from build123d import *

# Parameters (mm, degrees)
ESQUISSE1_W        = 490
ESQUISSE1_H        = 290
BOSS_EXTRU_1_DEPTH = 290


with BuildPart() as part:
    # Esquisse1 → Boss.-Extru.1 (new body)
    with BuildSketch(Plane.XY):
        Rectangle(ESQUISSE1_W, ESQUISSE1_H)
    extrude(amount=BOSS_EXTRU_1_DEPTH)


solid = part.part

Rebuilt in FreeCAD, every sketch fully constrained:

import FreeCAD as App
import Part
import Sketcher
from FreeCAD import Vector


def add_polygon(sketch, points):
    """Adds a closed chain of lines whose ends are joined by coincident constraints."""
    first, n = sketch.GeometryCount, len(points)
    for a, b in zip(points, points[1:] + points[:1]):
        sketch.addGeometry(Part.LineSegment(App.Vector(*a, 0), App.Vector(*b, 0)), False)
    for i in range(n):
        sketch.addConstraint(Sketcher.Constraint("Coincident", first + i, 2, first + (i + 1) % n, 1))

doc = App.newDocument("Part")
params = doc.addObject("Spreadsheet::Sheet", "Params")
for row, (alias, value) in enumerate([
    ("sketch1_width", "490 mm"),
    ("sketch1_height", "290 mm"),
    ("pad1_length", "290 mm"),
], start=1):
    params.set(f"A{row}", alias)
    params.set(f"B{row}", "=" + value)
    params.setAlias(f"B{row}", alias)

body = doc.addObject("PartDesign::Body", "Body")

sketch1 = doc.addObject("Sketcher::SketchObject", "Sketch")
body.addObject(sketch1)
sketch1.AttachmentSupport = (doc.XY_Plane, [""])
sketch1.MapMode = "FlatFace"
add_polygon(sketch1, [(-245, 145), (-245, -145), (245, -145), (245, 145)])
sketch1.addConstraint(Sketcher.Constraint("Vertical", 0))
sketch1.addConstraint(Sketcher.Constraint("Horizontal", 1))
sketch1.addConstraint(Sketcher.Constraint("Vertical", 2))
sketch1.addConstraint(Sketcher.Constraint("Horizontal", 3))
sketch1.addConstraint(Sketcher.Constraint("Symmetric", 0, 2, 2, 2, -1, 1))
sketch1.addConstraint(Sketcher.Constraint("DistanceX", 1, 1, 1, 2, 490.0))
sketch1.addConstraint(Sketcher.Constraint("DistanceY", 0, 2, 0, 1, 290.0))
sketch1.setExpression("Constraints[9]", "Params.sketch1_width")
sketch1.setExpression("Constraints[10]", "Params.sketch1_height")
pad1 = doc.addObject("PartDesign::Pad", "Pad")
body.addObject(pad1)
pad1.Profile = sketch1
pad1.setExpression("Length", "Params.pad1_length")

doc.recompute()
